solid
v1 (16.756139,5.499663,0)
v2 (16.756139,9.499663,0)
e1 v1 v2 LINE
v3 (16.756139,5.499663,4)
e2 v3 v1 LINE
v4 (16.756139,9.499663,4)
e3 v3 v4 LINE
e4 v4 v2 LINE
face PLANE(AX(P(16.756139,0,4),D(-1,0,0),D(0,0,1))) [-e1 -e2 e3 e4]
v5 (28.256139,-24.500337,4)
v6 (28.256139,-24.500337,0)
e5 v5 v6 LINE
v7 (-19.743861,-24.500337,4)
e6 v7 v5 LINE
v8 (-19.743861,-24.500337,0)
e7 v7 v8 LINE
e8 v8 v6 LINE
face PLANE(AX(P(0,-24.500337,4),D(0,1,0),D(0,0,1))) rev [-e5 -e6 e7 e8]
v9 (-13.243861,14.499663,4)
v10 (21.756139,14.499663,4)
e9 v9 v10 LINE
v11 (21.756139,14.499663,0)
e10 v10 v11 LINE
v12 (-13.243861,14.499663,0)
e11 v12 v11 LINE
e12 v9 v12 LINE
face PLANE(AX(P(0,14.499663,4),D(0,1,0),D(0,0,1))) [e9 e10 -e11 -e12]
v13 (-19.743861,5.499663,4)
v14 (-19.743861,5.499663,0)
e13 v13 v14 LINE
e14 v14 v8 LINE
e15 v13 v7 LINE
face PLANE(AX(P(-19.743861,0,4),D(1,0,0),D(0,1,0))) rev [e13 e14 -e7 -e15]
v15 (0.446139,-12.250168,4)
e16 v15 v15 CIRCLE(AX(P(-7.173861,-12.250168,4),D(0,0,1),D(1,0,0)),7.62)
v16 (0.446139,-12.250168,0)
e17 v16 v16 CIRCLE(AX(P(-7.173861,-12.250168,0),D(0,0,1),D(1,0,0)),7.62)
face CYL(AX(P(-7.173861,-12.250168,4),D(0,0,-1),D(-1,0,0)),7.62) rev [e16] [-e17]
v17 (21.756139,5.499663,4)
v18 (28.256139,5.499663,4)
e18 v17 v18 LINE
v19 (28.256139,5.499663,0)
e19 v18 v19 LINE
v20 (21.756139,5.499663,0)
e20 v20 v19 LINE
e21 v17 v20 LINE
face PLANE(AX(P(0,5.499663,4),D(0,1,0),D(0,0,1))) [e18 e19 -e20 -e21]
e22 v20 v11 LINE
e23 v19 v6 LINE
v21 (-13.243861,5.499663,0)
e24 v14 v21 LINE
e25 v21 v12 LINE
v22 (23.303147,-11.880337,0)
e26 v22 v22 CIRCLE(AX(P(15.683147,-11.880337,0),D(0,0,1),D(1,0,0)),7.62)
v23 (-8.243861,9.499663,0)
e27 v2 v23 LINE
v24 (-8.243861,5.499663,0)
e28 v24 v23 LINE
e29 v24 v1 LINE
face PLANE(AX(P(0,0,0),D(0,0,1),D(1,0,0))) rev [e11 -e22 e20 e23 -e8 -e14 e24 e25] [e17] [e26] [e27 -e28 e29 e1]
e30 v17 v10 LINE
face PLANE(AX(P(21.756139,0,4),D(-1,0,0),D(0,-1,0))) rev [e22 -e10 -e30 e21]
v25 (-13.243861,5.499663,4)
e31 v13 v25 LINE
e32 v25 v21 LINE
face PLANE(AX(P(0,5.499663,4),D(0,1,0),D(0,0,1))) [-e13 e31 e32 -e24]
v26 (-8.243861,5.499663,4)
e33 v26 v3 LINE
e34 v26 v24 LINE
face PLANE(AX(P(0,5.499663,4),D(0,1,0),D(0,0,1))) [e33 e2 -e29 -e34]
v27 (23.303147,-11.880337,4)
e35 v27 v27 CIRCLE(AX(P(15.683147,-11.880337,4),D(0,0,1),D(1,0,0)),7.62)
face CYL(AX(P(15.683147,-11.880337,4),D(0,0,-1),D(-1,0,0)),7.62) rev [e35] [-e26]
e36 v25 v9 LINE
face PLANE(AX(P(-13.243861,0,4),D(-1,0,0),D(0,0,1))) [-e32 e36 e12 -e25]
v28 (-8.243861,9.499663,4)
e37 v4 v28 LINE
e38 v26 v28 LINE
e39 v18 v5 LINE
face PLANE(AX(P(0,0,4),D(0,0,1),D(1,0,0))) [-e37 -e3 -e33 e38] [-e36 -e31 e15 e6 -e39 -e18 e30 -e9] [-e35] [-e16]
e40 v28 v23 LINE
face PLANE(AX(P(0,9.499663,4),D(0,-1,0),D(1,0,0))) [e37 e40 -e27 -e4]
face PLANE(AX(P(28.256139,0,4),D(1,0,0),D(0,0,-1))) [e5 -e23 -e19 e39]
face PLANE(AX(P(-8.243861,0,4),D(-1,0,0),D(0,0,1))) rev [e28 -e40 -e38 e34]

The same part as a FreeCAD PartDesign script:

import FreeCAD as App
import Part
import Sketcher

V = App.Vector


def add_polygon(sketch, points):
    """Adds a closed chain of lines whose ends are joined by coincident constraints."""
    first, n = sketch.GeometryCount, len(points)
    for a, b in zip(points, points[1:] + points[:1]):
        sketch.addGeometry(Part.LineSegment(App.Vector(*a, 0), App.Vector(*b, 0)), False)
    for i in range(n):
        sketch.addConstraint(Sketcher.Constraint("Coincident", first + i, 2, first + (i + 1) % n, 1))

doc = App.newDocument("Part")
body = doc.addObject("PartDesign::Body", "Body")

# Sketch on XY plane
sketch1 = body.newObject("Sketcher::SketchObject", "Sketch")
sketch1.AttachmentSupport = (doc.getObject("XY_Plane"), [""])
sketch1.MapMode = "FlatFace"
add_polygon(sketch1, [(-19.743861, 5.499663), (-19.743861, -24.500337), (28.256139, -24.500337), (28.256139, 5.499663), (21.756139, 5.499663), (21.756139, 14.499663), (-13.243861, 14.499663), (-13.243861, 5.499663)])  # lines 0-7
add_polygon(sketch1, [(16.756139, 5.499663), (-8.243861, 5.499663), (-8.243861, 9.499663), (16.756139, 9.499663)])  # lines 8-11
sketch1.addGeometry(Part.Circle(V(-7.173861, -12.250168, 0), V(0, 0, 1), 7.62), False)  # 12
sketch1.addGeometry(Part.Circle(V(15.683147, -11.880337, 0), V(0, 0, 1), 7.62), False)  # 13
sketch1.addConstraint([
    Sketcher.Constraint("Vertical", 0),
    Sketcher.Constraint("Horizontal", 1),
    Sketcher.Constraint("Vertical", 2),
    Sketcher.Constraint("Horizontal", 3),
    Sketcher.Constraint("Vertical", 4),
    Sketcher.Constraint("Horizontal", 5),
    Sketcher.Constraint("Vertical", 6),
    Sketcher.Constraint("Horizontal", 7),
    Sketcher.Constraint("Horizontal", 8),
    Sketcher.Constraint("Vertical", 9),
    Sketcher.Constraint("Horizontal", 10),
    Sketcher.Constraint("Vertical", 11),
    Sketcher.Constraint("Equal", 12, 13),
    Sketcher.Constraint("Horizontal", 3, 2, 6, 2),
    Sketcher.Constraint("Horizontal", 7, 2, 8, 2),
    Sketcher.Constraint("Equal", 3, 7),
    Sketcher.Constraint("Diameter", 12, 15.24),
    Sketcher.Constraint("DistanceX", 1, 1, 1, 2, 48.0),
    Sketcher.Constraint("DistanceX", 5, 2, 5, 1, 35.0),
    Sketcher.Constraint("DistanceX", 8, 2, 8, 1, 25.0),
    Sketcher.Constraint("DistanceY", 0, 2, 0, 1, 30.0),
    Sketcher.Constraint("DistanceY", 4, 1, 4, 2, 9.0),
    Sketcher.Constraint("DistanceY", 9, 1, 9, 2, 4.0),
    Sketcher.Constraint("DistanceX", 6, 2, 8, 2, 5.0),
    Sketcher.Constraint("DistanceX", 0, 2, 12, 3, 12.57),
    Sketcher.Constraint("DistanceY", 0, 2, 13, 3, 12.62),
    Sketcher.Constraint("DistanceX", 12, 3, -1, 1, 7.173861),
    Sketcher.Constraint("DistanceY", 12, 3, -1, 1, 12.250168),
    Sketcher.Constraint("DistanceX", 12, 3, 13, 3, 22.857008),
    Sketcher.Constraint("DistanceY", 12, 3, 13, 3, 0.369832),
])
pad1 = body.newObject("PartDesign::Pad", "Pad")
pad1.Profile = sketch1
pad1.Length = 4

doc.recompute()
